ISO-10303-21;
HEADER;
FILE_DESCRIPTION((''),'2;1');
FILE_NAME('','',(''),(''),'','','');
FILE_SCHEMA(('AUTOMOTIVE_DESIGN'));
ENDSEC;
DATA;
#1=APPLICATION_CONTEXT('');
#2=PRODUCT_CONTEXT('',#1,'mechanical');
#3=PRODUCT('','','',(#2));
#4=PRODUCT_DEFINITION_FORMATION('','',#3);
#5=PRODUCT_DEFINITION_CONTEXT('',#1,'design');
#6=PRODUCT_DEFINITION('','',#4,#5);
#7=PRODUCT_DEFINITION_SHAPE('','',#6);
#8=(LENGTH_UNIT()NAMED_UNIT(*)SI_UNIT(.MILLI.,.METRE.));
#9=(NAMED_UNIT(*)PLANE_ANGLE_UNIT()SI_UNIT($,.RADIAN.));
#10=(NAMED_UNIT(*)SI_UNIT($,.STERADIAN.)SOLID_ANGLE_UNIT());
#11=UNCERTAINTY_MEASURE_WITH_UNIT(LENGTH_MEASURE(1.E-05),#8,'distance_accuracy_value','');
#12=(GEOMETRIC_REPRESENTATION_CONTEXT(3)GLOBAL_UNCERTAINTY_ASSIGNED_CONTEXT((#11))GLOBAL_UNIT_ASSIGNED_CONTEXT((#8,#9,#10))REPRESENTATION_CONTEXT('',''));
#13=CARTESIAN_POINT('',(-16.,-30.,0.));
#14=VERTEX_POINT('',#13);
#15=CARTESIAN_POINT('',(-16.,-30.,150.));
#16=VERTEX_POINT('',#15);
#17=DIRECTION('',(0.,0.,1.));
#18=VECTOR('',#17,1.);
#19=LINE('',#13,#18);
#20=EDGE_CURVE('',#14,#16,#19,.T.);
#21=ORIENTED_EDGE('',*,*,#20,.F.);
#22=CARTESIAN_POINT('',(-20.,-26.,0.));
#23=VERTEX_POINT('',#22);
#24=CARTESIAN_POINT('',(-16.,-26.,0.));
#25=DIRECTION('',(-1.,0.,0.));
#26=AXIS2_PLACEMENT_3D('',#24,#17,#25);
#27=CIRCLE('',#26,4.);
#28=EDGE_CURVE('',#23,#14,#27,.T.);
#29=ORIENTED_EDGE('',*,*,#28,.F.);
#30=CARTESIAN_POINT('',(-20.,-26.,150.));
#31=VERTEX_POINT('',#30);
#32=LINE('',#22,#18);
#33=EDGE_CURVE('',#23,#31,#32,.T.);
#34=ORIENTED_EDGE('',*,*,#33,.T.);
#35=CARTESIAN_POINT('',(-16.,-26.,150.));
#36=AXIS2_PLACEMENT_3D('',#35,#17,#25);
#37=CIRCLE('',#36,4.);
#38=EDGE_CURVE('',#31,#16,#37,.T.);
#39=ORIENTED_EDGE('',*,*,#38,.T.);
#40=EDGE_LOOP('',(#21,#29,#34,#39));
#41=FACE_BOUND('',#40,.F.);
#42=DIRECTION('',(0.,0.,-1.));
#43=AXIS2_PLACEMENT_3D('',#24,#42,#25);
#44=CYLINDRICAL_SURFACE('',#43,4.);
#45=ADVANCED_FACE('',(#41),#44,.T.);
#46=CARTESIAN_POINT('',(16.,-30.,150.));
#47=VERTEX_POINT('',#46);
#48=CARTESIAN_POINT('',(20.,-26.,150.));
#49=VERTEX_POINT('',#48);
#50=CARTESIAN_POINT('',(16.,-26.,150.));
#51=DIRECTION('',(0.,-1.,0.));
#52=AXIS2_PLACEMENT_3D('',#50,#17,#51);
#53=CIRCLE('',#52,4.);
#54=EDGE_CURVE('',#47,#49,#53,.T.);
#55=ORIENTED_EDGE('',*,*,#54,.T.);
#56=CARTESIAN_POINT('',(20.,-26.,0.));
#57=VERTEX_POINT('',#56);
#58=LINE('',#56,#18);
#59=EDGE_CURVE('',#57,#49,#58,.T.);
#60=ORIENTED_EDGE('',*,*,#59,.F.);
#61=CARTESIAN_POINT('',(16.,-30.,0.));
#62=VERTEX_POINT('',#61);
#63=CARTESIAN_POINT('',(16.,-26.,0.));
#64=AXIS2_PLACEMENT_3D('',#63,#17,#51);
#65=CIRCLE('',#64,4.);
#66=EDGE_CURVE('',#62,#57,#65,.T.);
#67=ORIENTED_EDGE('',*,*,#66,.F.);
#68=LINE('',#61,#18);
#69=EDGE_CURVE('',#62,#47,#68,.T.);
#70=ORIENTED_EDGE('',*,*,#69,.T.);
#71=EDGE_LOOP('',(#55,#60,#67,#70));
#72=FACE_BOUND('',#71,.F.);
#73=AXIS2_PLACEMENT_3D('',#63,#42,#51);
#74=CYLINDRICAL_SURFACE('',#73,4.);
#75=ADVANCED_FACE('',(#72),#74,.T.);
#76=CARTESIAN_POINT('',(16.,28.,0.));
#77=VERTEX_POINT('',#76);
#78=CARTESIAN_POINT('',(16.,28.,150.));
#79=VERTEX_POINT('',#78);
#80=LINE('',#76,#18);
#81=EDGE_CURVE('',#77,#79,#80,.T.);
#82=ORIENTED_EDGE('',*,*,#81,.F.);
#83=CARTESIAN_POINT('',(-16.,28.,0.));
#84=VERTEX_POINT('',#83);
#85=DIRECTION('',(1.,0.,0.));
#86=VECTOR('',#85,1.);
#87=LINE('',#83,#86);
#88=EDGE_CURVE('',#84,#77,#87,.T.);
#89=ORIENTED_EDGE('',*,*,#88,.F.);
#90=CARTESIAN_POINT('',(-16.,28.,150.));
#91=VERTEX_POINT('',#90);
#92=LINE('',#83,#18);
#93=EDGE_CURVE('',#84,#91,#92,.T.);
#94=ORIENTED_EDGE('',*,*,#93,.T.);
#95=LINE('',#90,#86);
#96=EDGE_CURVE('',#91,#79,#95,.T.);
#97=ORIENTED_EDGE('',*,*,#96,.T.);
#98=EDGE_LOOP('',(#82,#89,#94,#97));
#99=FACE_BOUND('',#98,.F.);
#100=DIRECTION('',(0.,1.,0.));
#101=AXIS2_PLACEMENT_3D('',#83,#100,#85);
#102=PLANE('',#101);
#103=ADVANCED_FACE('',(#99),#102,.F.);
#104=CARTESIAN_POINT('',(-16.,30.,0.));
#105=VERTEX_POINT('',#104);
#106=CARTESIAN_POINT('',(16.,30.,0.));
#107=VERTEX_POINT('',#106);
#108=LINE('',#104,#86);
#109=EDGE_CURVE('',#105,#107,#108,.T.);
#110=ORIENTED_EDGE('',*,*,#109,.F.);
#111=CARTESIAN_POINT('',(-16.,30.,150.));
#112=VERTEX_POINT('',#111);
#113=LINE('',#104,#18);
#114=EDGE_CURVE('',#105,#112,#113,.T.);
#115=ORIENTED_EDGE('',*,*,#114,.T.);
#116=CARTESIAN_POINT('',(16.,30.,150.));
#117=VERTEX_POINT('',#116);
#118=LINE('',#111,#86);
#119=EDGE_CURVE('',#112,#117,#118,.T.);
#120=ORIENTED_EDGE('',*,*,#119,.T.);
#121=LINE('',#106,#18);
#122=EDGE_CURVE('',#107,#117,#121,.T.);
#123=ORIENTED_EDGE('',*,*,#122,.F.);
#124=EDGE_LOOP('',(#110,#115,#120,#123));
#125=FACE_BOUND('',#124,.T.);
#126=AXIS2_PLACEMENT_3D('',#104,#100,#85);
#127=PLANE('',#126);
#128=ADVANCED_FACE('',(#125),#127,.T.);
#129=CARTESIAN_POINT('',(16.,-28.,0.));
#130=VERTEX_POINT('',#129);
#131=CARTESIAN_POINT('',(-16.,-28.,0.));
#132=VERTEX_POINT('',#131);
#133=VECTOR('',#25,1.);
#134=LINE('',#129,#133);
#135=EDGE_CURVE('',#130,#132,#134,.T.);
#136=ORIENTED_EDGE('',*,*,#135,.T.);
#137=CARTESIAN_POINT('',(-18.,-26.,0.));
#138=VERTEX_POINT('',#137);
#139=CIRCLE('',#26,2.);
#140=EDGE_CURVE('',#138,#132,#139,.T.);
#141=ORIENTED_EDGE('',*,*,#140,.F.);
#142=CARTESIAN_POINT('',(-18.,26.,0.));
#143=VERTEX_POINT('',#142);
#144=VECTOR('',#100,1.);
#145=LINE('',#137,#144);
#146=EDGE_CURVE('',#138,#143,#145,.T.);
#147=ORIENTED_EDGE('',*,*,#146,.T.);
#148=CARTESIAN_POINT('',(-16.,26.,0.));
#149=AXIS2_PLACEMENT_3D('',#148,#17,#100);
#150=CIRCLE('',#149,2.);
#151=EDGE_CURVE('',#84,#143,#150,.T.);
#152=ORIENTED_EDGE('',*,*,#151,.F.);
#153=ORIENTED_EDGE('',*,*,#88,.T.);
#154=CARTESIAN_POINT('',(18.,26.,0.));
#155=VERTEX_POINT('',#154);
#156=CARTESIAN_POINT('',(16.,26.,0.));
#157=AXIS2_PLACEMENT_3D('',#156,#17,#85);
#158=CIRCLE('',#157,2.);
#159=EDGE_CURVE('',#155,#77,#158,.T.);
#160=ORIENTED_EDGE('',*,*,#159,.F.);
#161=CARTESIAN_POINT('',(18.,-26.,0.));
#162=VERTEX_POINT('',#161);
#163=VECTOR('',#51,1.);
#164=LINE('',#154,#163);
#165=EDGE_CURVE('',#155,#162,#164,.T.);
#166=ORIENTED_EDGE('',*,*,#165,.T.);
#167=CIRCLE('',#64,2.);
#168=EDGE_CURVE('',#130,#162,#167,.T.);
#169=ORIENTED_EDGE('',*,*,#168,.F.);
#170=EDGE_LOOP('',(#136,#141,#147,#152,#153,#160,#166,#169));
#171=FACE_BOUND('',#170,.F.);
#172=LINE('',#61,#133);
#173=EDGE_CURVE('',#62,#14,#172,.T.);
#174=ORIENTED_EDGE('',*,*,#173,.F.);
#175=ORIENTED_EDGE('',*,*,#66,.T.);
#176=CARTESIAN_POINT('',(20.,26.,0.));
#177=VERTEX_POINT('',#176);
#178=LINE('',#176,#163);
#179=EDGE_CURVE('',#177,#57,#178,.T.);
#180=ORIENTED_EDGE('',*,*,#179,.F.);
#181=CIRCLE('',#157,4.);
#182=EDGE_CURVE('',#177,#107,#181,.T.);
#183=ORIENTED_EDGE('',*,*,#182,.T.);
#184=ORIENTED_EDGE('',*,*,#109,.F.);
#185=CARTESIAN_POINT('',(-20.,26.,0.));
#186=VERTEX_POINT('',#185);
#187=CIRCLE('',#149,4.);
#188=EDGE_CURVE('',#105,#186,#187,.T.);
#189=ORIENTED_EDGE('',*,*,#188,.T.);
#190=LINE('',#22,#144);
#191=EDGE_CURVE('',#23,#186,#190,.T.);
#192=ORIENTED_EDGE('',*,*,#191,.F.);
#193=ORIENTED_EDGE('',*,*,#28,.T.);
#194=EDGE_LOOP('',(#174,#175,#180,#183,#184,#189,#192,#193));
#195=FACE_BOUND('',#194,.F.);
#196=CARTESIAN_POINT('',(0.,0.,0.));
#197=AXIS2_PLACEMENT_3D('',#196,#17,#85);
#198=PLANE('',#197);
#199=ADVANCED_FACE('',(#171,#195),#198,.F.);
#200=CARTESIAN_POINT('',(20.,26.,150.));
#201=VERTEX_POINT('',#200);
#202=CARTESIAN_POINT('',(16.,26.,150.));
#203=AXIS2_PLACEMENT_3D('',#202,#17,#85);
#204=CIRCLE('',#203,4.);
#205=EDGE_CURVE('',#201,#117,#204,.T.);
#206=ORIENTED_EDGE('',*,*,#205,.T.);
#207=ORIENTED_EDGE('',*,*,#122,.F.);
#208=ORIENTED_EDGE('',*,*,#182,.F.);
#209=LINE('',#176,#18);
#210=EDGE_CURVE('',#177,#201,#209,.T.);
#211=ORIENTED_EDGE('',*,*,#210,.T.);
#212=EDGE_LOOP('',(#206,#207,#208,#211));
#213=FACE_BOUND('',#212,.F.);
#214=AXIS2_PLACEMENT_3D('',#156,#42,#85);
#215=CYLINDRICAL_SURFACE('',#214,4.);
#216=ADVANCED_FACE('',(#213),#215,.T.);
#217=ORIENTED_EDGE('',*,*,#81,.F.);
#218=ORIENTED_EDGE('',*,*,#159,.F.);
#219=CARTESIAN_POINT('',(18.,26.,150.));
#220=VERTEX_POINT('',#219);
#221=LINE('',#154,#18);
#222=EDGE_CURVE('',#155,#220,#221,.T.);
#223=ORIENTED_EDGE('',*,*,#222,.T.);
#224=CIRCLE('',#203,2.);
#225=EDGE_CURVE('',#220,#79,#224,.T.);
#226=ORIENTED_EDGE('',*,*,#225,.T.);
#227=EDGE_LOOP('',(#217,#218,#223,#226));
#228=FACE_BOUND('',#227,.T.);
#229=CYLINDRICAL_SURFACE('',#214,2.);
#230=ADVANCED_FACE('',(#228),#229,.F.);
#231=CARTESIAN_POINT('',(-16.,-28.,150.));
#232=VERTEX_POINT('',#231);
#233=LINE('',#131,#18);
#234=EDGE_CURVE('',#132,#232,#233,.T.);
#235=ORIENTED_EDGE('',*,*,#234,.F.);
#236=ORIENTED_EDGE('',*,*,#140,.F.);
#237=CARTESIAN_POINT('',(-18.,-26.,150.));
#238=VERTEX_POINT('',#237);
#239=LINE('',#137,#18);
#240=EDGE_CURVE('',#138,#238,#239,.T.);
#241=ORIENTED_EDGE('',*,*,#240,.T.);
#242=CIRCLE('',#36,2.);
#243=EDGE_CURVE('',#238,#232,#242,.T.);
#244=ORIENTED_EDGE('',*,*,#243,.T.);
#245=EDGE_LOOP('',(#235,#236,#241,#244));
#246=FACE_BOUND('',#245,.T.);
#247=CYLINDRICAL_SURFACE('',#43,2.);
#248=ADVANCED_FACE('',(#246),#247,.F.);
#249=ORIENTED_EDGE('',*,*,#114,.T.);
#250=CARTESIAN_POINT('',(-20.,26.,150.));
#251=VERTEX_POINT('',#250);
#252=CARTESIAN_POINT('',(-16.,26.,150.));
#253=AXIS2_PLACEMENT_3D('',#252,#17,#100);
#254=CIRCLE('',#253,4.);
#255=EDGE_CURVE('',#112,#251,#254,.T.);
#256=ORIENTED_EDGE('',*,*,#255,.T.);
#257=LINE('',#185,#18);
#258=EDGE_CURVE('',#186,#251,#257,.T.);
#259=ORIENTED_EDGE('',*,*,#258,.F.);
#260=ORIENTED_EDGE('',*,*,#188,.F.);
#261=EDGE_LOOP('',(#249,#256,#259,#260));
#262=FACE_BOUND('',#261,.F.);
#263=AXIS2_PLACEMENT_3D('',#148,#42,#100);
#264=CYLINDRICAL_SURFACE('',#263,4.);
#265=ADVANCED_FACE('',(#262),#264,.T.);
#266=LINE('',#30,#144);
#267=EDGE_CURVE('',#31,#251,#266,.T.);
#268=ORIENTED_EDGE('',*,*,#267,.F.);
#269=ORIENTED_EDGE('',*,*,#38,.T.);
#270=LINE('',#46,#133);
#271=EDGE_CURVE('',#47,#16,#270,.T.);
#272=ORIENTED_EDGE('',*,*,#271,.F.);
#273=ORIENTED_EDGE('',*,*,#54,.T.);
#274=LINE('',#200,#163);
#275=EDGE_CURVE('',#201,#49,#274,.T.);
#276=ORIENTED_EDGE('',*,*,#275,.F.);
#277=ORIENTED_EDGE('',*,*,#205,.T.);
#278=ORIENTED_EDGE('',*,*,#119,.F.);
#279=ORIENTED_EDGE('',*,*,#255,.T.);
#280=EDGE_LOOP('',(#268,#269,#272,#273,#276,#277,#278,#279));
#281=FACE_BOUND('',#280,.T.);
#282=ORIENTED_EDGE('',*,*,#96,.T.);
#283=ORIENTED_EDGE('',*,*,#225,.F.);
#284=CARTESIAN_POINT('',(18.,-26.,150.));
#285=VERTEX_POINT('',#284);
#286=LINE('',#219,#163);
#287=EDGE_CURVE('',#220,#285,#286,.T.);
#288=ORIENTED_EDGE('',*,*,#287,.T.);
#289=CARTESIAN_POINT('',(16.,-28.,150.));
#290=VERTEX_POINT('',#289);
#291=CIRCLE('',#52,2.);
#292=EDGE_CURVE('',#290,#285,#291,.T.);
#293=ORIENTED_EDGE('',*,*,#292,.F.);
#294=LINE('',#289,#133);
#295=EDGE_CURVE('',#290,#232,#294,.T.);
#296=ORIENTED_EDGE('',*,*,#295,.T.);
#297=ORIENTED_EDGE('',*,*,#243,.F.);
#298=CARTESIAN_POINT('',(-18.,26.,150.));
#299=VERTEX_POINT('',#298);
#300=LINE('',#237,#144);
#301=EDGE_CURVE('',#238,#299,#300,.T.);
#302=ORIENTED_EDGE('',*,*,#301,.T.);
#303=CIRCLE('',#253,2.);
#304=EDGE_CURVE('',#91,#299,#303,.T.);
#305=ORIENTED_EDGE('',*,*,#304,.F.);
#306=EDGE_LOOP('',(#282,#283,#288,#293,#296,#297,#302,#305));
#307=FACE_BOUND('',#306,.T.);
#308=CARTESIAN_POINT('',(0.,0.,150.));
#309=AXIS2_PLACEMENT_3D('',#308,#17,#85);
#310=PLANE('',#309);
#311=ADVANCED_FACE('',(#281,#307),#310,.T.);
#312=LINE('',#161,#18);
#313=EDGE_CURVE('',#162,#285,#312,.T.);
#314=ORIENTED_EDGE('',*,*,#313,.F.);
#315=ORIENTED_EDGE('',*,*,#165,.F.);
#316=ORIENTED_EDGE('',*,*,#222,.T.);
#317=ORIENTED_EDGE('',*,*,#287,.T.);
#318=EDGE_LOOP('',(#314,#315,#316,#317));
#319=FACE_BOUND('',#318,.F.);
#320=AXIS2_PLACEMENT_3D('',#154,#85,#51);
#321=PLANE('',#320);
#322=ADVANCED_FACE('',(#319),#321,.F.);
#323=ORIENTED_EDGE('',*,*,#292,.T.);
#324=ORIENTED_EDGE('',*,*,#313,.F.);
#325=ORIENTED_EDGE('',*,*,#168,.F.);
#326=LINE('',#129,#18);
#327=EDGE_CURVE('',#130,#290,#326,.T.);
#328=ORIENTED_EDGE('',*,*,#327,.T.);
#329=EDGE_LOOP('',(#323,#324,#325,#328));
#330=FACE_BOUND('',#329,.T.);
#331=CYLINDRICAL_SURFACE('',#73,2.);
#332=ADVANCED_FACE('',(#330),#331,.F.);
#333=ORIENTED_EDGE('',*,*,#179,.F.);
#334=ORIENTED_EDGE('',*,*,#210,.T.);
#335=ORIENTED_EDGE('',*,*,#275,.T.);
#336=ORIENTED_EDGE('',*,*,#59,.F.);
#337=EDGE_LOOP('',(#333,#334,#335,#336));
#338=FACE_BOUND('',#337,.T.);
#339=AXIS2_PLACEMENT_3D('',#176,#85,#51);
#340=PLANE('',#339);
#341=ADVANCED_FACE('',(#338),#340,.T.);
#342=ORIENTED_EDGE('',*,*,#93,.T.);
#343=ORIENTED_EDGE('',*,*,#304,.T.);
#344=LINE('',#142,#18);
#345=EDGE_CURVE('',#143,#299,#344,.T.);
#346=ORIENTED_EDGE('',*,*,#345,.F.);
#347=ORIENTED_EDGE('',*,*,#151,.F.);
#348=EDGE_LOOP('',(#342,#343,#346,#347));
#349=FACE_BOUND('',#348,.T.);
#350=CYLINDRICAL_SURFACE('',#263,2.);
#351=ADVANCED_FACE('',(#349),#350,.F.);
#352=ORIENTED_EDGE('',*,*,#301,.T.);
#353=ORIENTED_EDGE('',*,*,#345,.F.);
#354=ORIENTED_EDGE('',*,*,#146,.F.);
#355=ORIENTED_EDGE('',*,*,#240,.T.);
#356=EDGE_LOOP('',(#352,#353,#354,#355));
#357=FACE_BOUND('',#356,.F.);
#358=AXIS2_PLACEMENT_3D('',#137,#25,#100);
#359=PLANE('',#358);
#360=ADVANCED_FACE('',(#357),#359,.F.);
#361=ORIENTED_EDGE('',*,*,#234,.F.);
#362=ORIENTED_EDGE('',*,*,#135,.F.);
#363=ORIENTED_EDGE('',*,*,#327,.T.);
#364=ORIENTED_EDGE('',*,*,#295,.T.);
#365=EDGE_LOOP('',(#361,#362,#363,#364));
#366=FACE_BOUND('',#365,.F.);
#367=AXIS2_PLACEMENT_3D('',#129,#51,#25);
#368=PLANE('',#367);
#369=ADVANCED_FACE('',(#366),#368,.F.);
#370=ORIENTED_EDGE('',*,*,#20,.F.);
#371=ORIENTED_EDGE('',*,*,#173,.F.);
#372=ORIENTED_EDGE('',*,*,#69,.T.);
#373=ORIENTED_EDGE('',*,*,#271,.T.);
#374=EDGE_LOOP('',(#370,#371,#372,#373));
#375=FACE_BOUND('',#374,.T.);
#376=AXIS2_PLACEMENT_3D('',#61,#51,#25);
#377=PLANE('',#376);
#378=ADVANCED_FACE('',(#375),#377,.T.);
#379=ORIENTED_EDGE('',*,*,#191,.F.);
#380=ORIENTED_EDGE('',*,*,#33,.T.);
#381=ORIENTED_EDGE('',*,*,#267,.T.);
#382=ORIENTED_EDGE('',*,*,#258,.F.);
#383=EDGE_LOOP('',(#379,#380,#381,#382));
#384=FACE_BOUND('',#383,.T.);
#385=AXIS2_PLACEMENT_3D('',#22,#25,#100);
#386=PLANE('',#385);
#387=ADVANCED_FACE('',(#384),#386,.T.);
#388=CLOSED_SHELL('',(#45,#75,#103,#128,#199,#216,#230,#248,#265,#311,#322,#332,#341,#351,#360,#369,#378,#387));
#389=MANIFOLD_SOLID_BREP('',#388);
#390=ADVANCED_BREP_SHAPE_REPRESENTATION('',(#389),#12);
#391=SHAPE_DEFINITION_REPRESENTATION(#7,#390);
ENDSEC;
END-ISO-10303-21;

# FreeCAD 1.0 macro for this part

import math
import FreeCAD as App
import Part
import Sketcher
from FreeCAD import Vector
Q = App.Units.Quantity

doc = App.newDocument("Part")
body = doc.addObject("PartDesign::Body", "Body")

# Sketch on XY plane
sketch1 = doc.addObject("Sketcher::SketchObject", "Sketch")
body.addObject(sketch1)
sketch1.AttachmentSupport = (doc.XY_Plane, [""])
sketch1.MapMode = "FlatFace"
sketch1.addGeometry(Part.LineSegment(Vector(-20, 26, 0), Vector(-20, -26, 0)), False)
sketch1.addGeometry(Part.ArcOfCircle(Part.Circle(Vector(-16, -26, 0), Vector(0, 0, 1), 4), math.radians(180), math.radians(270)), False)
sketch1.addGeometry(Part.LineSegment(Vector(-16, -30, 0), Vector(16, -30, 0)), False)
sketch1.addGeometry(Part.ArcOfCircle(Part.Circle(Vector(16, -26, 0), Vector(0, 0, 1), 4), math.radians(-90), math.radians(0)), False)
sketch1.addGeometry(Part.LineSegment(Vector(20, -26, 0), Vector(20, 26, 0)), False)
sketch1.addGeometry(Part.ArcOfCircle(Part.Circle(Vector(16, 26, 0), Vector(0, 0, 1), 4), math.radians(0), math.radians(90)), False)
sketch1.addGeometry(Part.LineSegment(Vector(16, 30, 0), Vector(-16, 30, 0)), False)
sketch1.addGeometry(Part.ArcOfCircle(Part.Circle(Vector(-16, 26, 0), Vector(0, 0, 1), 4), math.radians(90), math.radians(180)), False)
sketch1.addGeometry(Part.ArcOfCircle(Part.Circle(Vector(-16, 26, 0), Vector(0, 0, 1), 2), math.radians(90), math.radians(180)), False)
sketch1.addGeometry(Part.LineSegment(Vector(-16, 28, 0), Vector(16, 28, 0)), False)
sketch1.addGeometry(Part.ArcOfCircle(Part.Circle(Vector(16, 26, 0), Vector(0, 0, 1), 2), math.radians(0), math.radians(90)), False)
sketch1.addGeometry(Part.LineSegment(Vector(18, 26, 0), Vector(18, -26, 0)), False)
sketch1.addGeometry(Part.ArcOfCircle(Part.Circle(Vector(16, -26, 0), Vector(0, 0, 1), 2), math.radians(-90), math.radians(0)), False)
sketch1.addGeometry(Part.LineSegment(Vector(16, -28, 0), Vector(-16, -28, 0)), False)
sketch1.addGeometry(Part.ArcOfCircle(Part.Circle(Vector(-16, -26, 0), Vector(0, 0, 1), 2), math.radians(180), math.radians(270)), False)
sketch1.addGeometry(Part.LineSegment(Vector(-18, -26, 0), Vector(-18, 26, 0)), False)
sketch1.addConstraint(Sketcher.Constraint("Tangent", 0, 2, 1, 1))
sketch1.addConstraint(Sketcher.Constraint("Tangent", 1, 2, 2, 1))
sketch1.addConstraint(Sketcher.Constraint("Tangent", 2, 2, 3, 1))
sketch1.addConstraint(Sketcher.Constraint("Tangent", 3, 2, 4, 1))
sketch1.addConstraint(Sketcher.Constraint("Tangent", 4, 2, 5, 1))
sketch1.addConstraint(Sketcher.Constraint("Tangent", 5, 2, 6, 1))
sketch1.addConstraint(Sketcher.Constraint("Tangent", 6, 2, 7, 1))
sketch1.addConstraint(Sketcher.Constraint("Tangent", 7, 2, 0, 1))
sketch1.addConstraint(Sketcher.Constraint("Tangent", 8, 1, 9, 1))
sketch1.addConstraint(Sketcher.Constraint("Tangent", 9, 2, 10, 2))
sketch1.addConstraint(Sketcher.Constraint("Tangent", 10, 1, 11, 1))
sketch1.addConstraint(Sketcher.Constraint("Tangent", 11, 2, 12, 2))
sketch1.addConstraint(Sketcher.Constraint("Tangent", 12, 1, 13, 1))
sketch1.addConstraint(Sketcher.Constraint("Tangent", 13, 2, 14, 2))
sketch1.addConstraint(Sketcher.Constraint("Tangent", 14, 1, 15, 1))
sketch1.addConstraint(Sketcher.Constraint("Tangent", 15, 2, 8, 2))
sketch1.addConstraint(Sketcher.Constraint("Vertical", 0))
sketch1.addConstraint(Sketcher.Constraint("Horizontal", 2))
sketch1.addConstraint(Sketcher.Constraint("Vertical", 4))
sketch1.addConstraint(Sketcher.Constraint("Horizontal", 6))
sketch1.addConstraint(Sketcher.Constraint("Horizontal", 9))
sketch1.addConstraint(Sketcher.Constraint("Vertical", 11))
sketch1.addConstraint(Sketcher.Constraint("Horizontal", 13))
sketch1.addConstraint(Sketcher.Constraint("Vertical", 15))
sketch1.addConstraint(Sketcher.Constraint("Coincident", 8, 3, 7, 3))
sketch1.addConstraint(Sketcher.Constraint("Coincident", 10, 3, 5, 3))
sketch1.addConstraint(Sketcher.Constraint("Coincident", 12, 3, 3, 3))
sketch1.addConstraint(Sketcher.Constraint("Equal", 1, 3))
sketch1.addConstraint(Sketcher.Constraint("Equal", 3, 5))
sketch1.addConstraint(Sketcher.Constraint("Equal", 5, 7))
sketch1.addConstraint(Sketcher.Constraint("Equal", 12, 14))
sketch1.addConstraint(Sketcher.Constraint("Symmetric", 1, 3, 5, 3, -1, 1))
sketch1.addConstraint(Sketcher.Constraint("Radius", 1, Q("4 mm")))
sketch1.addConstraint(Sketcher.Constraint("Radius", 8, Q("2 mm")))
sketch1.addConstraint(Sketcher.Constraint("DistanceX", 0, 2, -1, 1, Q("20 mm")))
sketch1.addConstraint(Sketcher.Constraint("DistanceY", 1, 2, -1, 1, Q("30 mm")))
pad1 = doc.addObject("PartDesign::Pad", "Pad")
body.addObject(pad1)
pad1.Profile = sketch1
pad1.Length = 150

doc.recompute()
